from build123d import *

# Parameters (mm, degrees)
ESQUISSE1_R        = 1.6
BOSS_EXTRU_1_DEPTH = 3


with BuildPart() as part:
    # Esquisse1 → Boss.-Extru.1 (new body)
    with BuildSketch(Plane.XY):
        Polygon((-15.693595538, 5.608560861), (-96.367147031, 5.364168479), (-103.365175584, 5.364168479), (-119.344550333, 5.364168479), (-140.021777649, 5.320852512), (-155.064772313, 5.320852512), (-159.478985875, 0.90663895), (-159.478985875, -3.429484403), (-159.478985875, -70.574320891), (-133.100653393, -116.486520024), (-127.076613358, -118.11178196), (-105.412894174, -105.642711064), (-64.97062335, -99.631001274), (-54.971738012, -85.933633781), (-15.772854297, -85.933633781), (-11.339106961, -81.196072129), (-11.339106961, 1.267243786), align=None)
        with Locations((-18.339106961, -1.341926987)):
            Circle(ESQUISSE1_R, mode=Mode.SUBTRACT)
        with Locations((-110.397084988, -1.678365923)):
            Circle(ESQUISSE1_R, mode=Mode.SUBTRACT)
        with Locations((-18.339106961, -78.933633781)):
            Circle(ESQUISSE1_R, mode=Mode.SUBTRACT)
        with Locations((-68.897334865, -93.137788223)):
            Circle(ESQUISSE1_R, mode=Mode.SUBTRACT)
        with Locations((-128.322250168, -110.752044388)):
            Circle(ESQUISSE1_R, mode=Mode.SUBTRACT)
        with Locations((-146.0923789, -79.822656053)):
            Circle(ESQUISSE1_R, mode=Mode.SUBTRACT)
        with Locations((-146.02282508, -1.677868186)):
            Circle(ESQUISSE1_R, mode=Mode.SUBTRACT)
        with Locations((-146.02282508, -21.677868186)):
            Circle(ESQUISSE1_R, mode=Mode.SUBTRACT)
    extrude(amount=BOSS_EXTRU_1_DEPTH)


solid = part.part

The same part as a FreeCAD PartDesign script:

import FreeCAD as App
import Part
import Sketcher

V = App.Vector
Q = App.Units.Quantity


def add_polygon(sketch, points):
    """Adds a closed chain of lines whose ends are joined by coincident constraints."""
    first, n = sketch.GeometryCount, len(points)
    for a, b in zip(points, points[1:] + points[:1]):
        sketch.addGeometry(Part.LineSegment(App.Vector(*a, 0), App.Vector(*b, 0)), False)
    for i in range(n):
        sketch.addConstraint(Sketcher.Constraint("Coincident", first + i, 2, first + (i + 1) % n, 1))

doc = App.newDocument("Part")
body = doc.addObject("PartDesign::Body", "Body")

sketch1 = doc.addObject("Sketcher::SketchObject", "Sketch")
body.addObject(sketch1)
sketch1.AttachmentSupport = (doc.XY_Plane, [""])
sketch1.MapMode = "FlatFace"
add_polygon(sketch1, [(-15.7, 5.6), (-96.4, 5.4), (-119.3, 5.4), (-140, 5.3), (-155.1, 5.3), (-159.5, 0.9), (-159.5, -70.6), (-133.1, -116.5), (-127.1, -118.1), (-105.4, -105.6), (-65, -99.6), (-55, -85.9), (-15.8, -85.9), (-11.3, -81.2), (-11.3, 1.3)])
sketch1.addGeometry(Part.Circle(V(-128.3, -110.8, 0), V(0, 0, 1), 1.6), False)
sketch1.addGeometry(Part.Circle(V(-146.1, -79.8, 0), V(0, 0, 1), 1.6), False)
sketch1.addGeometry(Part.Circle(V(-68.9, -93.1, 0), V(0, 0, 1), 1.6), False)
sketch1.addGeometry(Part.Circle(V(-18.3, -78.9, 0), V(0, 0, 1), 1.6), False)
sketch1.addGeometry(Part.Circle(V(-146, -21.7, 0), V(0, 0, 1), 1.6), False)
sketch1.addGeometry(Part.Circle(V(-146, -1.7, 0), V(0, 0, 1), 1.6), False)
sketch1.addGeometry(Part.Circle(V(-110.4, -1.7, 0), V(0, 0, 1), 1.6), False)
sketch1.addGeometry(Part.Circle(V(-18.3, -1.3, 0), V(0, 0, 1), 1.6), False)
sketch1.addConstraint(Sketcher.Constraint("Horizontal", 1))
sketch1.addConstraint(Sketcher.Constraint("Horizontal", 3))
sketch1.addConstraint(Sketcher.Constraint("Vertical", 5))
sketch1.addConstraint(Sketcher.Constraint("Horizontal", 11))
sketch1.addConstraint(Sketcher.Constraint("Vertical", 13))
sketch1.addConstraint(Sketcher.Constraint("Equal", 15, 16))
sketch1.addConstraint(Sketcher.Constraint("Equal", 16, 17))
sketch1.addConstraint(Sketcher.Constraint("Equal", 17, 18))
sketch1.addConstraint(Sketcher.Constraint("Equal", 18, 19))
sketch1.addConstraint(Sketcher.Constraint("Equal", 19, 20))
sketch1.addConstraint(Sketcher.Constraint("Equal", 20, 21))
sketch1.addConstraint(Sketcher.Constraint("Equal", 21, 22))
sketch1.addConstraint(Sketcher.Constraint("Vertical", 19, 3, 20, 3))
sketch1.addConstraint(Sketcher.Constraint("Vertical", 18, 3, 22, 3))
sketch1.addConstraint(Sketcher.Constraint("Diameter", 15, Q("3.2 mm")))
sketch1.addConstraint(Sketcher.Constraint("Angle", 4, Q("-135 deg")))
sketch1.addConstraint(Sketcher.Constraint("DistanceY", 19, 3, 20, 3, Q("20 mm")))
sketch1.addConstraint(Sketcher.Constraint("DistanceY", 10, 2, 18, 3, Q("7 mm")))
sketch1.addConstraint(Sketcher.Constraint("DistanceX", 18, 3, 12, 2, Q("7 mm")))
sketch1.addConstraint(Sketcher.Constraint("DistanceY", 9, 2, -1, 1, Q("99.631001 mm")))
sketch1.addConstraint(Sketcher.Constraint("DistanceY", 5, 2, 5, 1, Q("71.48096 mm")))
sketch1.addConstraint(Sketcher.Constraint("DistanceY", 6, 2, 5, 2, Q("45.912199 mm")))
sketch1.addConstraint(Sketcher.Constraint("Distance", 0, Q("80.673922 mm")))
sketch1.addConstraint(Sketcher.Constraint("Distance", 4, Q("6.242641 mm")))
sketch1.addConstraint(Sketcher.Constraint("Distance", 8, Q("24.995889 mm")))
sketch1.addConstraint(Sketcher.Constraint("Distance", 14, Q("6.14887 mm")))
sketch1.addConstraint(Sketcher.Constraint("DistanceX", 1, 2, 1, 1, Q("22.977403 mm")))
sketch1.addConstraint(Sketcher.Constraint("DistanceX", 3, 2, 3, 1, Q("15.042995 mm")))
sketch1.addConstraint(Sketcher.Constraint("DistanceX", 11, 1, 11, 2, Q("39.198884 mm")))
sketch1.addConstraint(Sketcher.Constraint("DistanceY", 13, 1, 13, 2, Q("82.463316 mm")))
sketch1.addConstraint(Sketcher.Constraint("DistanceX", 15, 3, -1, 1, Q("128.32225 mm")))
sketch1.addConstraint(Sketcher.Constraint("DistanceX", 16, 3, -1, 1, Q("146.092379 mm")))
sketch1.addConstraint(Sketcher.Constraint("DistanceY", 17, 3, -1, 1, Q("93.137788 mm")))
sketch1.addConstraint(Sketcher.Constraint("DistanceY", 19, 3, -1, 1, Q("21.677868 mm")))
sketch1.addConstraint(Sketcher.Constraint("DistanceY", -1, 1, 0, 2, Q("5.364168 mm")))
sketch1.addConstraint(Sketcher.Constraint("DistanceX", 1, 2, -1, 1, Q("119.34455 mm")))
sketch1.addConstraint(Sketcher.Constraint("DistanceY", -1, 1, 4, 2, Q("0.906639 mm")))
sketch1.addConstraint(Sketcher.Constraint("DistanceY", 7, 2, -1, 1, Q("118.111782 mm")))
sketch1.addConstraint(Sketcher.Constraint("DistanceY", 8, 2, -1, 1, Q("105.642711 mm")))
sketch1.addConstraint(Sketcher.Constraint("DistanceX", 10, 2, -1, 1, Q("54.971738 mm")))
sketch1.addConstraint(Sketcher.Constraint("DistanceY", -1, 1, 14, 2, Q("5.608561 mm")))
sketch1.addConstraint(Sketcher.Constraint("DistanceY", 15, 3, 16, 3, Q("30.929388 mm")))
sketch1.addConstraint(Sketcher.Constraint("DistanceY", 15, 3, 18, 3, Q("31.818411 mm")))
sketch1.addConstraint(Sketcher.Constraint("DistanceX", 16, 3, 18, 3, Q("127.753272 mm")))
sketch1.addConstraint(Sketcher.Constraint("DistanceX", 19, 3, 17, 3, Q("77.12549 mm")))
sketch1.addConstraint(Sketcher.Constraint("DistanceX", 19, 3, 18, 3, Q("127.683718 mm")))
sketch1.addConstraint(Sketcher.Constraint("DistanceX", 20, 3, 21, 3, Q("35.62574 mm")))
sketch1.addConstraint(Sketcher.Constraint("DistanceY", 16, 3, 21, 3, Q("78.14429 mm")))
sketch1.addConstraint(Sketcher.Constraint("DistanceY", 21, 3, 22, 3, Q("0.336439 mm")))
sketch1.addConstraint(Sketcher.Constraint("DistanceY", 17, 3, 22, 3, Q("91.795861 mm")))
sketch1.addConstraint(Sketcher.Constraint("DistanceX", 2, 2, 0, 2, Q("43.654631 mm")))
sketch1.addConstraint(Sketcher.Constraint("DistanceX", 6, 2, 17, 3, Q("64.203319 mm")))
sketch1.addConstraint(Sketcher.Constraint("DistanceX", 6, 2, 7, 2, Q("6.02404 mm")))
sketch1.addConstraint(Sketcher.Constraint("DistanceX", 17, 3, 9, 2, Q("3.926712 mm")))
pad1 = doc.addObject("PartDesign::Pad", "Pad")
body.addObject(pad1)
pad1.Profile = sketch1
pad1.Length = 3

doc.recompute()
